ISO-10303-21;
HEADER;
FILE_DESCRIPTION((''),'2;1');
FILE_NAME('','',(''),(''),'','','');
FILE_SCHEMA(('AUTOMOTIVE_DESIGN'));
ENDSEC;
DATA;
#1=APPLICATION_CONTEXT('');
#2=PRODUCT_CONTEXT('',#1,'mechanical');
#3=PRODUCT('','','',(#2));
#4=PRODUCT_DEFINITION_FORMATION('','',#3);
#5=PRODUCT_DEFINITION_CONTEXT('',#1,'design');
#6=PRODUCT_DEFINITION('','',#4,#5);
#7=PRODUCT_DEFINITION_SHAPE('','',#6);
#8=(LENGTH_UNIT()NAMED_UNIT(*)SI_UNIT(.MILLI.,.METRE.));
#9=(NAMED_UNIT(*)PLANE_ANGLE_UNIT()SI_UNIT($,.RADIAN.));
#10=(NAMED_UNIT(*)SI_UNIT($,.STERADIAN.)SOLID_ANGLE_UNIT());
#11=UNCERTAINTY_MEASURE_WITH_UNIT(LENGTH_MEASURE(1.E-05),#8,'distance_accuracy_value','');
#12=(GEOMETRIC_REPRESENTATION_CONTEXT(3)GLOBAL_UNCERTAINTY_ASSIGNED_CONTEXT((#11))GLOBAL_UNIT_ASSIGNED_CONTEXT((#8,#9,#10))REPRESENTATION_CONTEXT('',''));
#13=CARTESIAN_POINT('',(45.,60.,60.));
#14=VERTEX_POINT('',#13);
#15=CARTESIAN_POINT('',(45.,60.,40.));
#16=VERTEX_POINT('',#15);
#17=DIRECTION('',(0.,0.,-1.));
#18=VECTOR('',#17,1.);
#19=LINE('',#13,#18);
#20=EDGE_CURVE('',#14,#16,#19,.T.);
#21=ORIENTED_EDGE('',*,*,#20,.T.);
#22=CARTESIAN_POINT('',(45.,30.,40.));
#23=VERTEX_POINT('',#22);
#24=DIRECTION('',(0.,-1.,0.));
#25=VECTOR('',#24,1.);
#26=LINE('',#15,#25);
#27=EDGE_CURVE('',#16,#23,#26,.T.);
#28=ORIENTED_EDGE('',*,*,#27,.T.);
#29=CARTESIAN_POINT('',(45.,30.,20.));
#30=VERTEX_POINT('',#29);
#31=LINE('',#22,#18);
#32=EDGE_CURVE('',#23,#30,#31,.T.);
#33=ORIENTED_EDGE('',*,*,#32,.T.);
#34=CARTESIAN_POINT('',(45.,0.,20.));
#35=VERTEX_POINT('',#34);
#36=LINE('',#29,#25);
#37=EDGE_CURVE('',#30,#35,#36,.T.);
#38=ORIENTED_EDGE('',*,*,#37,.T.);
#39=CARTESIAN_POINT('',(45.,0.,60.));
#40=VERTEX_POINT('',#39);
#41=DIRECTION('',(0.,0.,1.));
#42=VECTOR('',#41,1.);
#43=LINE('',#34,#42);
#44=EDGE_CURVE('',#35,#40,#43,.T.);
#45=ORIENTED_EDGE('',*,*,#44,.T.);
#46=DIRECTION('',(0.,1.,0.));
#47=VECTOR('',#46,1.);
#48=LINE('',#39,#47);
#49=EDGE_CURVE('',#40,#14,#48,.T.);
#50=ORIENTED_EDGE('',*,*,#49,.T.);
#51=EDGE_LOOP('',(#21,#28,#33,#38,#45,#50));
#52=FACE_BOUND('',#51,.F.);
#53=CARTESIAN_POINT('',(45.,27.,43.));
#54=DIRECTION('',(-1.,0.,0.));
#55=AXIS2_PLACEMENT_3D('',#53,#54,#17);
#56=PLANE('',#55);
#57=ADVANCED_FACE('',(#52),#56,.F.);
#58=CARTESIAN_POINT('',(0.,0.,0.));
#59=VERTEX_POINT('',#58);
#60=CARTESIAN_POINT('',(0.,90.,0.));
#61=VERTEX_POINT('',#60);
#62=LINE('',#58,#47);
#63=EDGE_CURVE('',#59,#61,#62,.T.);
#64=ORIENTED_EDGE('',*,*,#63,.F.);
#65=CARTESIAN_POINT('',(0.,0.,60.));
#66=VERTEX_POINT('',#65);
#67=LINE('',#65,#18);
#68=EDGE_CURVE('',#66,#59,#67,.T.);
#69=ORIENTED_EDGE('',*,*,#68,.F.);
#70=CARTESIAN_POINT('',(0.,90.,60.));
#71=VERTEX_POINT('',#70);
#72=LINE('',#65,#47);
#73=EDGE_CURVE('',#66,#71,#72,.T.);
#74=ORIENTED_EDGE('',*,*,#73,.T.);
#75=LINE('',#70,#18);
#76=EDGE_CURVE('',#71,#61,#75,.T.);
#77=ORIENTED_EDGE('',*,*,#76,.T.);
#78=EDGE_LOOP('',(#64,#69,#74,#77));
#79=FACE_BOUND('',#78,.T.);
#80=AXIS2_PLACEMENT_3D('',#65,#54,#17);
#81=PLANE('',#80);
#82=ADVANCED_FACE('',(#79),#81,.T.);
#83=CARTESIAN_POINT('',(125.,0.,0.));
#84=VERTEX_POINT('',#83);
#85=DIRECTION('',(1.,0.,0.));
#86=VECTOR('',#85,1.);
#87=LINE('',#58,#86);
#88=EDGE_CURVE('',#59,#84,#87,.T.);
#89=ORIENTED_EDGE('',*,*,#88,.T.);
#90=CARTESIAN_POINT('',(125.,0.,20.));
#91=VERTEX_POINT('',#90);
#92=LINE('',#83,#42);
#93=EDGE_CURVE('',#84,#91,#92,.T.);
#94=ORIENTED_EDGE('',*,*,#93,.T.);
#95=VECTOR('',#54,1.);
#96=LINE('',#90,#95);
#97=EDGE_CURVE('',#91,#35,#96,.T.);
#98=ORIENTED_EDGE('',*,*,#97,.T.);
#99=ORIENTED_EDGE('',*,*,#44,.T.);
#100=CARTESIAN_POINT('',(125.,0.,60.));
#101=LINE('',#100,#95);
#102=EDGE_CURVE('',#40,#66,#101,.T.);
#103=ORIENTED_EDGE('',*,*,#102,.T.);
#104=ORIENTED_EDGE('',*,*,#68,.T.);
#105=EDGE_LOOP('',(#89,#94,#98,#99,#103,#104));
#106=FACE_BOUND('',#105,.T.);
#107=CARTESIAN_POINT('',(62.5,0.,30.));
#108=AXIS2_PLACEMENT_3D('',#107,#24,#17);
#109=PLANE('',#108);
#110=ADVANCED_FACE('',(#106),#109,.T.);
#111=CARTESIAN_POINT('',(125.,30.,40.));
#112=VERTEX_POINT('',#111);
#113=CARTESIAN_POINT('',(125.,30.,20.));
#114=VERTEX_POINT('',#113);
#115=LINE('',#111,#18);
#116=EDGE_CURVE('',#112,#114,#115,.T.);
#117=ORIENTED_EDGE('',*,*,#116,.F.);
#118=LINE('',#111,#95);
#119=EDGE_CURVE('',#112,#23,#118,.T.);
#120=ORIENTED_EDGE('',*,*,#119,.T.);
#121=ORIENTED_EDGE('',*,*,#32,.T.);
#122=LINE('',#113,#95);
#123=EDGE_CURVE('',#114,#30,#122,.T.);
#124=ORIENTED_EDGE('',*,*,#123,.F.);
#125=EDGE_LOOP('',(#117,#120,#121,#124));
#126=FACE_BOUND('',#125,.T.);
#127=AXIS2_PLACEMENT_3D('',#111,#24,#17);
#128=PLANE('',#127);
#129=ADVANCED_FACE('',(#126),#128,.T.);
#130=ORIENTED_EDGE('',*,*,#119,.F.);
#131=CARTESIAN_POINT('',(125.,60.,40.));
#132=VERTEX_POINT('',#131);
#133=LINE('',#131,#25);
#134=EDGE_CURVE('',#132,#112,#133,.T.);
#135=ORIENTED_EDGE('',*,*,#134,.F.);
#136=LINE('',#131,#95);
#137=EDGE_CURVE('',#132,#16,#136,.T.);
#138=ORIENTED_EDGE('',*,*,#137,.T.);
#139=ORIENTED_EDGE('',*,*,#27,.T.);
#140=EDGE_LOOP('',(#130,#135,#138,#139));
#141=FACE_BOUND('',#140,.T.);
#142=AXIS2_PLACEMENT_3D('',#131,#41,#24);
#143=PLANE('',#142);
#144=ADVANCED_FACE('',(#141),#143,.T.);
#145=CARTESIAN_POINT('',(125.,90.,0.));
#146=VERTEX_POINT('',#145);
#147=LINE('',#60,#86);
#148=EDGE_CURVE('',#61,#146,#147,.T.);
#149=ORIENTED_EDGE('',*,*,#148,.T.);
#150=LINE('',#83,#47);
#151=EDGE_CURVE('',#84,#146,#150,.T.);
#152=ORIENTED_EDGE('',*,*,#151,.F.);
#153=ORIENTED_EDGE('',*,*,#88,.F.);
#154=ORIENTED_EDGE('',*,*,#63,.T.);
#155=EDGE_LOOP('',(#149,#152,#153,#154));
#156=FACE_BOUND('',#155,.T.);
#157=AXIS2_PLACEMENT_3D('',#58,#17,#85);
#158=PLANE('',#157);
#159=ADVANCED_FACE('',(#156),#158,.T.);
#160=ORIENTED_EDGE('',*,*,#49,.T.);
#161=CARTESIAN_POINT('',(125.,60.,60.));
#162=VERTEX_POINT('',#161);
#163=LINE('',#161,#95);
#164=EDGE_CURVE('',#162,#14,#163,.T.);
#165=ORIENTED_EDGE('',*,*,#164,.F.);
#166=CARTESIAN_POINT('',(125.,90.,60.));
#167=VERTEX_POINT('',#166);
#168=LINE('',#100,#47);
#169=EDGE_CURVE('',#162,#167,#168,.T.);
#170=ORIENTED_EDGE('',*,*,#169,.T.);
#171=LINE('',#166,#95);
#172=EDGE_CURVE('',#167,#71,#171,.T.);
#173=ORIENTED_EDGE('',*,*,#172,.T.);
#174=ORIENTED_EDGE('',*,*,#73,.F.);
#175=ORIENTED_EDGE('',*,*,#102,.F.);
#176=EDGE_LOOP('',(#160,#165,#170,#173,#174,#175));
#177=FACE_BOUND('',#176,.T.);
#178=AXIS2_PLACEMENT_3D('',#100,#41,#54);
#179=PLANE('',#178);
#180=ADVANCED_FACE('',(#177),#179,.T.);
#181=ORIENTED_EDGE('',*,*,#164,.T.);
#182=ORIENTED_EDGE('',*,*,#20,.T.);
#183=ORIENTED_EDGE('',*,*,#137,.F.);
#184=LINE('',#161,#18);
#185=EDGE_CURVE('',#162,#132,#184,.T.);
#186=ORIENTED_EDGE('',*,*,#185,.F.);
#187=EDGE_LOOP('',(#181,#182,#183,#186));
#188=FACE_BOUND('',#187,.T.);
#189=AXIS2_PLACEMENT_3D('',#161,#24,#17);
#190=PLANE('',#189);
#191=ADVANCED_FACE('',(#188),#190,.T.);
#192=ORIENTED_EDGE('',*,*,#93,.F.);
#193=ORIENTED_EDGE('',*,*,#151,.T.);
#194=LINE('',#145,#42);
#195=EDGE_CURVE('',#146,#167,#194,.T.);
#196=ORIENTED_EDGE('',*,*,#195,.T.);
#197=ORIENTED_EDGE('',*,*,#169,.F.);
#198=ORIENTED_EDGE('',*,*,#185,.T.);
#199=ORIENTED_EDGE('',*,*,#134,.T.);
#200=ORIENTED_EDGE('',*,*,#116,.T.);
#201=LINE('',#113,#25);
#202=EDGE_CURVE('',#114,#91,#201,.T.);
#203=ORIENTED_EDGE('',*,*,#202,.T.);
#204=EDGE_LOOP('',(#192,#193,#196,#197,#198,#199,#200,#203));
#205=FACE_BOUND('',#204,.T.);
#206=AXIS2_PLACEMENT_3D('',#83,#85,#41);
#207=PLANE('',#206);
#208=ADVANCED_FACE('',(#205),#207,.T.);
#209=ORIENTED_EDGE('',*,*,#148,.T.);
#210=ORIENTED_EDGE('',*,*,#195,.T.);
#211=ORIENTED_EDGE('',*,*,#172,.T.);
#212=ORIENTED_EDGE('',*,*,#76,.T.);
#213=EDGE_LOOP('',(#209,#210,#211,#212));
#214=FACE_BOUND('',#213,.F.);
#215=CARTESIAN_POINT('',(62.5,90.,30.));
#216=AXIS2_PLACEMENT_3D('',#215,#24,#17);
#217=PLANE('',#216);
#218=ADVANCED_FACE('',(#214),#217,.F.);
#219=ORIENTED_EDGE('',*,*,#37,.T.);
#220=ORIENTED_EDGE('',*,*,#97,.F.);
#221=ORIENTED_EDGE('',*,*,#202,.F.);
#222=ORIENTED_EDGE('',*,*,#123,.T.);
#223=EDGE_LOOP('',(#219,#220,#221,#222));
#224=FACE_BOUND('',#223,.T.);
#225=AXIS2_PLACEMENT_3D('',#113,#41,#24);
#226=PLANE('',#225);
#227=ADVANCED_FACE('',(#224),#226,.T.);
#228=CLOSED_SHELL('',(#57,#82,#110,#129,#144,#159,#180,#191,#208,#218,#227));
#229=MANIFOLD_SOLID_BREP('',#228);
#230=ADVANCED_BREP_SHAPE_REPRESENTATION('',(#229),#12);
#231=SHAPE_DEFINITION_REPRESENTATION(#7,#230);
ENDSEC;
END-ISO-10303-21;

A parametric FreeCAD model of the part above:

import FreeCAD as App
import Part
import Sketcher
Q = App.Units.Quantity


def add_polygon(sketch, points):
    """Adds a closed chain of lines whose ends are joined by coincident constraints."""
    first, n = sketch.GeometryCount, len(points)
    for a, b in zip(points, points[1:] + points[:1]):
        sketch.addGeometry(Part.LineSegment(App.Vector(*a, 0), App.Vector(*b, 0)), False)
    for i in range(n):
        sketch.addConstraint(Sketcher.Constraint("Coincident", first + i, 2, first + (i + 1) % n, 1))

doc = App.newDocument("Part")
body = doc.addObject("PartDesign::Body", "Body")

# Sketch on XZ plane
sketch1 = doc.addObject("Sketcher::SketchObject", "Sketch")
body.addObject(sketch1)
sketch1.AttachmentSupport = (doc.XZ_Plane, [""])
sketch1.MapMode = "FlatFace"
add_polygon(sketch1, [(125, 0), (125, 60), (0, 60), (0, 0)])  # lines 0-3
sketch1.addConstraint([
    Sketcher.Constraint("Vertical", 0),
    Sketcher.Constraint("Horizontal", 1),
    Sketcher.Constraint("Vertical", 2),
    Sketcher.Constraint("Horizontal", 3),
    Sketcher.Constraint("Coincident", 2, 2, -1, 1),
    Sketcher.Constraint("DistanceX", 1, 2, 1, 1, Q("125 mm")),
    Sketcher.Constraint("DistanceY", 0, 1, 0, 2, Q("60 mm")),
])
pad1 = doc.addObject("PartDesign::Pad", "Pad")
body.addObject(pad1)
pad1.Profile = sketch1
pad1.Length = 90
pad1.Reversed = True

# Sketch on YZ plane
sketch2 = doc.addObject("Sketcher::SketchObject", "Sketch001")
body.addObject(sketch2)
sketch2.AttachmentSupport = (doc.YZ_Plane, [""])
sketch2.MapMode = "FlatFace"
sketch2.AttachmentOffset = App.Placement(App.Vector(0, 0, 125), App.Rotation())
add_polygon(sketch2, [(0, 60), (0, 20), (30, 20), (30, 40), (60, 40), (60, 60)])  # lines 0-5
sketch2.addConstraint([
    Sketcher.Constraint("Vertical", 0),
    Sketcher.Constraint("Horizontal", 1),
    Sketcher.Constraint("Vertical", 2),
    Sketcher.Constraint("Horizontal", 3),
    Sketcher.Constraint("Vertical", 4),
    Sketcher.Constraint("Horizontal", 5),
    Sketcher.Constraint("PointOnObject", 0, 2, -2),
    Sketcher.Constraint("Equal", 1, 3),
    Sketcher.Constraint("Equal", 2, 4),
    Sketcher.Constraint("DistanceX", 1, 1, 1, 2, Q("30 mm")),
    Sketcher.Constraint("DistanceY", 0, 2, 0, 1, Q("40 mm")),
    Sketcher.Constraint("DistanceY", -1, 1, 0, 2, Q("20 mm")),
])
pocket1 = doc.addObject("PartDesign::Pocket", "Pocket")
body.addObject(pocket1)
pocket1.Profile = sketch2
pocket1.Length = 80

doc.recompute()
